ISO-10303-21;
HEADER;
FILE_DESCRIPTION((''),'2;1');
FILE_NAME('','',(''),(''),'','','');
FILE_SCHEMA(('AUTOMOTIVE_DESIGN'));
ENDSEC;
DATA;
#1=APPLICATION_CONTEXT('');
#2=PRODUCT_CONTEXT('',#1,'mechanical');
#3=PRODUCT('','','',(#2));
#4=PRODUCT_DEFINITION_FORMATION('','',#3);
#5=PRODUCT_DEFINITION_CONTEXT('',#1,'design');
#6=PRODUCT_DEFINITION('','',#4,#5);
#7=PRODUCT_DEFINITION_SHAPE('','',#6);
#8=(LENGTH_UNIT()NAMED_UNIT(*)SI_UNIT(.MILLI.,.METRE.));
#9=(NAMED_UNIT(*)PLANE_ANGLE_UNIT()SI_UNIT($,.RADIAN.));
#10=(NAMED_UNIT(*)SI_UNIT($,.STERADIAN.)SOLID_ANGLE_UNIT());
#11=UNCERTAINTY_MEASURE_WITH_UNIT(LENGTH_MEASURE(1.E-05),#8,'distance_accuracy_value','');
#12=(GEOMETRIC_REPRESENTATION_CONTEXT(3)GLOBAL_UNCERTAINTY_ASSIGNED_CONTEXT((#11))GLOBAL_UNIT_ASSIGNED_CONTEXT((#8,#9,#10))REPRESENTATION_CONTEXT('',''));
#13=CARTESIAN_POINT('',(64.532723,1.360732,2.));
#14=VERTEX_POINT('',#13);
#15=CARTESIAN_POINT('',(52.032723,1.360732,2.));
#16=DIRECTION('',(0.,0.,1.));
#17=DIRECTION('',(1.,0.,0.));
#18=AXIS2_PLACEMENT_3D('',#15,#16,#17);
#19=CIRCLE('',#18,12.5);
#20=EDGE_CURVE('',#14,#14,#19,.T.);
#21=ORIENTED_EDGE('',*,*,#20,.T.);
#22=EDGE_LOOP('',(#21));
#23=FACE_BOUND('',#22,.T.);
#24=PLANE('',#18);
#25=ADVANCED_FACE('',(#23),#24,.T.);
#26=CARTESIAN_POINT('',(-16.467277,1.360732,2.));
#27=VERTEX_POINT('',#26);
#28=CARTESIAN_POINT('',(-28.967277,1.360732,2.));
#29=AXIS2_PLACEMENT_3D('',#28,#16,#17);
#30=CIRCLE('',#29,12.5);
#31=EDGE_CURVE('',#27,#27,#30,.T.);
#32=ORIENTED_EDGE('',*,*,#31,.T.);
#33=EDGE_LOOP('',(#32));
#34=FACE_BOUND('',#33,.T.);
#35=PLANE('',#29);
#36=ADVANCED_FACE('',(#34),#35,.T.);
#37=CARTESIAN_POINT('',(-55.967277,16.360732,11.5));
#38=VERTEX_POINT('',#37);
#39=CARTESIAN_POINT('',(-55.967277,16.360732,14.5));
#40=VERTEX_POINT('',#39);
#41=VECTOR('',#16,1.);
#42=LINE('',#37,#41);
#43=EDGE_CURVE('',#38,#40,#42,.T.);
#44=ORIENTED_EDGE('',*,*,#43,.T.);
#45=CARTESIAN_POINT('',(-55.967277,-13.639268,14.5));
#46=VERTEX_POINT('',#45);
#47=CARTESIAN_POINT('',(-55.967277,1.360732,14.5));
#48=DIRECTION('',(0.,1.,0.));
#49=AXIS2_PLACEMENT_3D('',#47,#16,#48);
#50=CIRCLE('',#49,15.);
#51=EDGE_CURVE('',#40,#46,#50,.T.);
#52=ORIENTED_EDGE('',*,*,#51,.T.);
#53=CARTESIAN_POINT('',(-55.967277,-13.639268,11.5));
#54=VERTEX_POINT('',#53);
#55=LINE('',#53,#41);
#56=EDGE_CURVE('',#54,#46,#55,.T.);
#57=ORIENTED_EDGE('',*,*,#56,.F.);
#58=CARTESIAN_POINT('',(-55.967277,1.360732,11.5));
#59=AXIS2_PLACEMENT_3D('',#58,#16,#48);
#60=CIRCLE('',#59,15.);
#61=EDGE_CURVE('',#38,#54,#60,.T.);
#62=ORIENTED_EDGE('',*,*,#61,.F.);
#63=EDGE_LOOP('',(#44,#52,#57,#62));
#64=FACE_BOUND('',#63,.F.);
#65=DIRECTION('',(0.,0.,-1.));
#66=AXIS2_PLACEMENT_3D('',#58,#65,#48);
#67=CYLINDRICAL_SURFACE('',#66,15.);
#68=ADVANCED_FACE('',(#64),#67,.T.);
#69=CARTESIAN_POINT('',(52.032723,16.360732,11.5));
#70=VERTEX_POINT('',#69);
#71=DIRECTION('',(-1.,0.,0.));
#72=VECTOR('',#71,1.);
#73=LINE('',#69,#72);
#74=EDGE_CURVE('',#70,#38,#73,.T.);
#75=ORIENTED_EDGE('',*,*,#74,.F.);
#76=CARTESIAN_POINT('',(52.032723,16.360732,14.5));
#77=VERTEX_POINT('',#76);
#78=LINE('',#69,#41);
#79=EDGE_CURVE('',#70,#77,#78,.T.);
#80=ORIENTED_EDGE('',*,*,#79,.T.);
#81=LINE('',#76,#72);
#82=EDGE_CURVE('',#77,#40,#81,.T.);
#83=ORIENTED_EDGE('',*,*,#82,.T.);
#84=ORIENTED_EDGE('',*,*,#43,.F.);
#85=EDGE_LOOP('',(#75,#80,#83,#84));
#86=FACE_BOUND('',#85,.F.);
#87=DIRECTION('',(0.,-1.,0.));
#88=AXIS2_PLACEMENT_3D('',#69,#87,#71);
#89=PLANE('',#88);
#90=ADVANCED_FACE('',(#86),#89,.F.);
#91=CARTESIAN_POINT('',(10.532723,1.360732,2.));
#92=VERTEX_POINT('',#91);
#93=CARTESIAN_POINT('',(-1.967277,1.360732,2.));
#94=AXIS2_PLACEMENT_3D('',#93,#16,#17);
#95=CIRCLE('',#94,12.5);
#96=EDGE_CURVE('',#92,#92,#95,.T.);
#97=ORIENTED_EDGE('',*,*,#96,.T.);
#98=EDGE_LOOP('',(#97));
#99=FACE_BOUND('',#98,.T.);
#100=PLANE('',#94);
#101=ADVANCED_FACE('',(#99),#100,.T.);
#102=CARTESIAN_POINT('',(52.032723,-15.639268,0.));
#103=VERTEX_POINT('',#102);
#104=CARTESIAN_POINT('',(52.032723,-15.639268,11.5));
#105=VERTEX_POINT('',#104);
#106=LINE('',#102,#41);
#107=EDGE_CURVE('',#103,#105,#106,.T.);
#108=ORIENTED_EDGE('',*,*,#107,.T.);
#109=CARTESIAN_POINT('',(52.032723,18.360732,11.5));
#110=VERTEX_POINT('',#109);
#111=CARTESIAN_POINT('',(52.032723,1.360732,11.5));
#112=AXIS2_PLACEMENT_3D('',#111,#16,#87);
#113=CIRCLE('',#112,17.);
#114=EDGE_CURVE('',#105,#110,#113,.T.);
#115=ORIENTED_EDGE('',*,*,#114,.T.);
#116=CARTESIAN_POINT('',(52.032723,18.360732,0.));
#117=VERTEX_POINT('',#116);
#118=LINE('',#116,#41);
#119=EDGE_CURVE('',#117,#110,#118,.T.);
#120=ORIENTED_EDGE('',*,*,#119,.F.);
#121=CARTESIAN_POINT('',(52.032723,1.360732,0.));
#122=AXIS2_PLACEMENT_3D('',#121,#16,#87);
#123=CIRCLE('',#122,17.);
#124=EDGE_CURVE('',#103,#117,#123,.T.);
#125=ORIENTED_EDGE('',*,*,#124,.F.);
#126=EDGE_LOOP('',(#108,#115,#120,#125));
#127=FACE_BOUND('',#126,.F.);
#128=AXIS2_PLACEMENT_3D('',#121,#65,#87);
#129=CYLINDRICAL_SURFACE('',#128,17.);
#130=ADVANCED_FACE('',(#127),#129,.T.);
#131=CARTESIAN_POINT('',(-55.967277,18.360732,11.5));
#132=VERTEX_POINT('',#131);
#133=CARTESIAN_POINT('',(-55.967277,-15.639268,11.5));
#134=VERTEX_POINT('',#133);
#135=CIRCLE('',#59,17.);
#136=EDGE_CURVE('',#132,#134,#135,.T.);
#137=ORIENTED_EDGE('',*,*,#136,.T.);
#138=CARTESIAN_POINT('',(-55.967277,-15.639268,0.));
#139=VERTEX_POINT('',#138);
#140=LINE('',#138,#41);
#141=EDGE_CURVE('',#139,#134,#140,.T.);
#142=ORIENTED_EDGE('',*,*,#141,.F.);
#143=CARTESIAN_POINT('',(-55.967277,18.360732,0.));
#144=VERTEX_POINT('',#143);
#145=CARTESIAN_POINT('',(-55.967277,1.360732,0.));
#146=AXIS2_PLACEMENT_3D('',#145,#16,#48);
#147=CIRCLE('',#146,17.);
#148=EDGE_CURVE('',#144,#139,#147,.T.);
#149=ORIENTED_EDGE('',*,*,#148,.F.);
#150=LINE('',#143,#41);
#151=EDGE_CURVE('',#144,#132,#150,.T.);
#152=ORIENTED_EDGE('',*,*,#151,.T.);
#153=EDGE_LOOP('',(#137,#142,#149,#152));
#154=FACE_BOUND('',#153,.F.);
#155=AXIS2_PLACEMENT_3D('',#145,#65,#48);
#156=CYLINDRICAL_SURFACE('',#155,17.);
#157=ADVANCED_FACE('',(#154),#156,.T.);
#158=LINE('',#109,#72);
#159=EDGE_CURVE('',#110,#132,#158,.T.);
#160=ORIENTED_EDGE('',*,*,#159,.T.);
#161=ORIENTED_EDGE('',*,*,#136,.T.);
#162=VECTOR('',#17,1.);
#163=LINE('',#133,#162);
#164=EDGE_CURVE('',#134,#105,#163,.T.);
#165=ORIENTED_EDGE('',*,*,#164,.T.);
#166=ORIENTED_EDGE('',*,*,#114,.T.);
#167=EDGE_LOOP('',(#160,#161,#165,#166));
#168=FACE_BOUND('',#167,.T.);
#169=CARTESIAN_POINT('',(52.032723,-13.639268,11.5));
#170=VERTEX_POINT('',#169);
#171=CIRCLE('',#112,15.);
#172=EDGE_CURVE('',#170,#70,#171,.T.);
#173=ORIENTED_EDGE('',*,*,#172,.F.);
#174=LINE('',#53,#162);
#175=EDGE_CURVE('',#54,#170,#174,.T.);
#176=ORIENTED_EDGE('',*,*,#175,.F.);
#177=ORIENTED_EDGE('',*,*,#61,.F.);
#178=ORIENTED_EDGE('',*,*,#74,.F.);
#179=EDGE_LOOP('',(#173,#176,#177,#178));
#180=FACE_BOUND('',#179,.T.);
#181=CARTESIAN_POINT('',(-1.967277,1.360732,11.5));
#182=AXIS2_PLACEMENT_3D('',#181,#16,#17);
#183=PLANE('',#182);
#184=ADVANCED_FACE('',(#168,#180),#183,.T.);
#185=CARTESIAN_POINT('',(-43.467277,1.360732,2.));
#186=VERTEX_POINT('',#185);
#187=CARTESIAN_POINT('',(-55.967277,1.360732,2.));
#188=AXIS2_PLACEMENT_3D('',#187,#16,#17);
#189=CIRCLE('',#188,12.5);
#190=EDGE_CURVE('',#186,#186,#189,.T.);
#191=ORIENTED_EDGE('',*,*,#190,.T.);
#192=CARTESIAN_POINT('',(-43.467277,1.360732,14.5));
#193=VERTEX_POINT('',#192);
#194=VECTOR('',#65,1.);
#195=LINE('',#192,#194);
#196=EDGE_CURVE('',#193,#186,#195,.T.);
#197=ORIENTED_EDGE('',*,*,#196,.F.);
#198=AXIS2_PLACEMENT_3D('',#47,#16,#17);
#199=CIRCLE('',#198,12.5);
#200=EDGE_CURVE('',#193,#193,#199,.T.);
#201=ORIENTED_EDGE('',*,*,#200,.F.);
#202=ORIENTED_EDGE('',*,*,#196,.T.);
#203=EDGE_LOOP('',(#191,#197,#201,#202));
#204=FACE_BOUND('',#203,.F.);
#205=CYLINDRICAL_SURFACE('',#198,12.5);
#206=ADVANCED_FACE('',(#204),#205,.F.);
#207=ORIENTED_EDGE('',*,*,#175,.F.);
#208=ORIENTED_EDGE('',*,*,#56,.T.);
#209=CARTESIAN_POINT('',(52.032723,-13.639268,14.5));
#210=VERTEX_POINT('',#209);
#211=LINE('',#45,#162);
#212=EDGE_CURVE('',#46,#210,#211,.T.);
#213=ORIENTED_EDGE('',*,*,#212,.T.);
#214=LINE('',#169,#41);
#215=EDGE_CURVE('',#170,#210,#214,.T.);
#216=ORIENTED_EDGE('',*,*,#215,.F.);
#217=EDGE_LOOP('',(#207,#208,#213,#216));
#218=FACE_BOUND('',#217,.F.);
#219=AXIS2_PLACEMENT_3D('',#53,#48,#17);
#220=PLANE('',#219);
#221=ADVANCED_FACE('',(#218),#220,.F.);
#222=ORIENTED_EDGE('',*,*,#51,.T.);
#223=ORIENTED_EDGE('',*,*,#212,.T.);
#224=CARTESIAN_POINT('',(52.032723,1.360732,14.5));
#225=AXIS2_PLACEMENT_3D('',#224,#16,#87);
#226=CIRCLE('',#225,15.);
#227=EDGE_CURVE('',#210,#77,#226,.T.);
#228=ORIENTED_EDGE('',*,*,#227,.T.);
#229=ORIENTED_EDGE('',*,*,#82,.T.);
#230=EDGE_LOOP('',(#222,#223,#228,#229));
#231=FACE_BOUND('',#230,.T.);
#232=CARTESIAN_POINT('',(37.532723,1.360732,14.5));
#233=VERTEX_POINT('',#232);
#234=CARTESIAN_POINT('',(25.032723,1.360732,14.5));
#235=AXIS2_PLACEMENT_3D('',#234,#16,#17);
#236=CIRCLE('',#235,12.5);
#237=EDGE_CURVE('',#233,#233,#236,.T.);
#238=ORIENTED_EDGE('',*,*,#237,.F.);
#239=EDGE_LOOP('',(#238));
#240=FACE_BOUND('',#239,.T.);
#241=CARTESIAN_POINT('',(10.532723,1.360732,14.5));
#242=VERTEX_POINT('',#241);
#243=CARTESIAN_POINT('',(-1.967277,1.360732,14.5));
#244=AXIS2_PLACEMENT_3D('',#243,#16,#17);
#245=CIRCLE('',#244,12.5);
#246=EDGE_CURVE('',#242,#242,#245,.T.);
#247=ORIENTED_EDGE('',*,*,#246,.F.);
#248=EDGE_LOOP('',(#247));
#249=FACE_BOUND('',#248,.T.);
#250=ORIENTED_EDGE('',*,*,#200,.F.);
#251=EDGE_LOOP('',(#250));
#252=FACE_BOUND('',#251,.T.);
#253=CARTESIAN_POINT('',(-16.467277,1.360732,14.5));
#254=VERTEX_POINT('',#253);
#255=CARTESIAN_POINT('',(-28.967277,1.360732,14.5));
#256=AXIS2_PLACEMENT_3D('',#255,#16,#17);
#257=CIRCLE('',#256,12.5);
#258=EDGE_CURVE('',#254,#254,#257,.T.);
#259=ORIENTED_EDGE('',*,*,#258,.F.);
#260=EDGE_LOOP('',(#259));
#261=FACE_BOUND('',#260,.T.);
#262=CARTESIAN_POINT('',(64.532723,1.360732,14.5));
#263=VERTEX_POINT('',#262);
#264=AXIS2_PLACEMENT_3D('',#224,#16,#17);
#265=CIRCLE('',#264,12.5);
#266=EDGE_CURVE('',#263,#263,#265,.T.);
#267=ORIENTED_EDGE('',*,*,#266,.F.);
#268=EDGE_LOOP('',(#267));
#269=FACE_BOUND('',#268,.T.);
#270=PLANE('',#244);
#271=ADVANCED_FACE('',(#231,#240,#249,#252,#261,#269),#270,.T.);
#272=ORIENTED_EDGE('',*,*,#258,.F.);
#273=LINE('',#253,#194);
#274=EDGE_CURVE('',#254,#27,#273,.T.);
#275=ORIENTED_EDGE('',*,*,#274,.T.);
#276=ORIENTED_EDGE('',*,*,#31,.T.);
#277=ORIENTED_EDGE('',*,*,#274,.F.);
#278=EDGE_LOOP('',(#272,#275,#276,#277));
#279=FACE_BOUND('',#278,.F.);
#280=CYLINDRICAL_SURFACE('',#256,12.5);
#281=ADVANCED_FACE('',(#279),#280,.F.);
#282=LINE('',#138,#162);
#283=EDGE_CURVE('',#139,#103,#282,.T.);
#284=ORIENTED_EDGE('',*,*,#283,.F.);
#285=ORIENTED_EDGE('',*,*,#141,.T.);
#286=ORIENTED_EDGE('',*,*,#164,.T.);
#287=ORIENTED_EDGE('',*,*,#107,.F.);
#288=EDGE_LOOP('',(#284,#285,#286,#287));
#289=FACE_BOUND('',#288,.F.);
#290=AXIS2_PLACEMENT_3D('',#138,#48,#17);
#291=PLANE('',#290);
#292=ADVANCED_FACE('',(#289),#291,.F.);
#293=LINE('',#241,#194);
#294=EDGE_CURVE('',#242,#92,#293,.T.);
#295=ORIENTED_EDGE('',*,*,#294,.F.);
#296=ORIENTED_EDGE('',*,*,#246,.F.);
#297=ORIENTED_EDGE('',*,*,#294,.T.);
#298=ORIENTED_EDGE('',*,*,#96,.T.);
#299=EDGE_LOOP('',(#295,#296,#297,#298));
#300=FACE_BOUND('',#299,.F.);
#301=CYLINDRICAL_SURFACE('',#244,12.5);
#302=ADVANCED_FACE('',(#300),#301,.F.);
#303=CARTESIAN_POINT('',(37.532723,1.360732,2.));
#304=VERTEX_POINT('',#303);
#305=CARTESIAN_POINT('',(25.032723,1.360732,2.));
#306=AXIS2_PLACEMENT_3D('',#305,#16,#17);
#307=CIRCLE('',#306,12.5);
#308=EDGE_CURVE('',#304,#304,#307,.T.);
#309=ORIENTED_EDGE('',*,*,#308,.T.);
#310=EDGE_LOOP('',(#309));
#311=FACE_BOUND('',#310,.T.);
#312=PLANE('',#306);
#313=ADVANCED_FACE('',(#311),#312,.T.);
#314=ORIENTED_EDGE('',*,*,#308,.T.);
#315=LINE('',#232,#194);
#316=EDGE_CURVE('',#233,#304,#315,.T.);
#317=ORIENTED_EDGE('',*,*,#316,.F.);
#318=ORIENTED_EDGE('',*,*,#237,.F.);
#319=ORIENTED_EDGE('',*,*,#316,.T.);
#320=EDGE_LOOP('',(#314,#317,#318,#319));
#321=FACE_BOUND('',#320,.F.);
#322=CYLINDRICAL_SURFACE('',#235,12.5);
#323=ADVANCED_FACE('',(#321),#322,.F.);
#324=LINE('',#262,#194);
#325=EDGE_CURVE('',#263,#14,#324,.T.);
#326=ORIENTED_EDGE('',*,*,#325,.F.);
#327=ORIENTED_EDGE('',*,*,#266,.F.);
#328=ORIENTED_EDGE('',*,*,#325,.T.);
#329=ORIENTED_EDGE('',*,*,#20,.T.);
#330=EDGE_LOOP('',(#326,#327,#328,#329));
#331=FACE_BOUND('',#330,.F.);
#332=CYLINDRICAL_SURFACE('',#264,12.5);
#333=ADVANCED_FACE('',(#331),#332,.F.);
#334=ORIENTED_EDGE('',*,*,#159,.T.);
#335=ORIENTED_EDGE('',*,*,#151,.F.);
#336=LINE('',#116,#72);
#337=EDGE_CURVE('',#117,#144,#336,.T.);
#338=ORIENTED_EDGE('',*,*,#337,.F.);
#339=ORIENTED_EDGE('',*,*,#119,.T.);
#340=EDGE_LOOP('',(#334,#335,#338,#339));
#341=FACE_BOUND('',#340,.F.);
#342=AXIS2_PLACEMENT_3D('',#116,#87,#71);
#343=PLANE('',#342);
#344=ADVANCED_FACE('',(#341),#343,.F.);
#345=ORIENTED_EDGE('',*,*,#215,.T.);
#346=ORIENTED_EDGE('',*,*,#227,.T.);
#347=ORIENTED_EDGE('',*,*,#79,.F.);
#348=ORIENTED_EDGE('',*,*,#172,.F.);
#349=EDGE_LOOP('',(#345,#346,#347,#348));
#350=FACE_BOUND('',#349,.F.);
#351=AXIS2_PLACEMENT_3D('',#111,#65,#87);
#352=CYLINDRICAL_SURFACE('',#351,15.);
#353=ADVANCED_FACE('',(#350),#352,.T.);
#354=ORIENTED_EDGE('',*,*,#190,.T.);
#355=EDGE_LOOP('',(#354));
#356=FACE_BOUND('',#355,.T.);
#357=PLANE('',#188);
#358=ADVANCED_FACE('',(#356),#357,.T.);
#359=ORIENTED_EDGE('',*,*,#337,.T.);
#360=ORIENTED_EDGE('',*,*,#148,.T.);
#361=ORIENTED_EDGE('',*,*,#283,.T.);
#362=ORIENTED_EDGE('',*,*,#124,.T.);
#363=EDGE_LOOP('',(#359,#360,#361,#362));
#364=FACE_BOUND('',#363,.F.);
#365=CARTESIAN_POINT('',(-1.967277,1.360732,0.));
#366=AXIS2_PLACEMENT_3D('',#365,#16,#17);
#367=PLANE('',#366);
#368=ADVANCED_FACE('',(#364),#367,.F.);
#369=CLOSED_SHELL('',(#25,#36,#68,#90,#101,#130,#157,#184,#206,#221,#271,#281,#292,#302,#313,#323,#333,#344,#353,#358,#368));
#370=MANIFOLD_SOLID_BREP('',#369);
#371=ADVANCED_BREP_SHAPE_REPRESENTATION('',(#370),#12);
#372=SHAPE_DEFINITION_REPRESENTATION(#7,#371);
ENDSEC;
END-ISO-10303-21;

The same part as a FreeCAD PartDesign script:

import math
import FreeCAD as App
import Part
import Sketcher
from FreeCAD import Vector
Q = App.Units.Quantity

doc = App.newDocument("Part")
params = doc.addObject("Spreadsheet::Sheet", "Params")
for row, (alias, value) in enumerate([
    ("sketch1_radius", "17 mm"),
    ("sketch1_width", "108 mm"),
    ("pad1_length", "11.5 mm"),
    ("sketch2_radius", "15 mm"),
    ("sketch2_width", "108 mm"),
    ("pad2_length", "3 mm"),
    ("sketch3_diameter", "25 mm"),
    ("pocket1_length", "12.5 mm"),
], start=1):
    params.set(f"A{row}", alias)
    params.set(f"B{row}", "=" + value)
    params.setAlias(f"B{row}", alias)

body = doc.addObject("PartDesign::Body", "Body")

sketch1 = doc.addObject("Sketcher::SketchObject", "Sketch")
body.addObject(sketch1)
sketch1.AttachmentSupport = (doc.XY_Plane, [""])
sketch1.MapMode = "FlatFace"
sketch1.addGeometry([
    Part.LineSegment(Vector(52.032723, 18.360732, 0), Vector(-55.967277, 18.360732, 0)),
    Part.ArcOfCircle(Part.Circle(Vector(-55.967277, 1.360732, 0), Vector(0, 0, 1), 17), math.radians(90), math.radians(270)),
    Part.LineSegment(Vector(-55.967277, -15.639268, 0), Vector(52.032723, -15.639268, 0)),
    Part.ArcOfCircle(Part.Circle(Vector(52.032723, 1.360732, 0), Vector(0, 0, 1), 17), math.radians(-90), math.radians(90)),
], False)
sketch1.addConstraint([
    Sketcher.Constraint("Tangent", 0, 2, 1, 1),
    Sketcher.Constraint("Tangent", 1, 2, 2, 1),
    Sketcher.Constraint("Tangent", 2, 2, 3, 1),
    Sketcher.Constraint("Tangent", 3, 2, 0, 1),
    Sketcher.Constraint("Horizontal", 0),
    Sketcher.Constraint("Horizontal", 2),
    Sketcher.Constraint("Radius", 1, Q("17 mm")),
    Sketcher.Constraint("DistanceX", 0, 2, 0, 1, Q("108 mm")),
    Sketcher.Constraint("DistanceY", -1, 1, 0, 2, Q("18.360732 mm")),
    Sketcher.Constraint("DistanceX", 1, 3, -1, 1, Q("55.967277 mm")),
])
sketch1.setExpression("Constraints[6]", "Params.sketch1_radius")
sketch1.setExpression("Constraints[7]", "Params.sketch1_width")
pad1 = doc.addObject("PartDesign::Pad", "Pad")
body.addObject(pad1)
pad1.Profile = sketch1
pad1.setExpression("Length", "Params.pad1_length")

sketch2 = doc.addObject("Sketcher::SketchObject", "Sketch001")
body.addObject(sketch2)
sketch2.AttachmentSupport = (doc.XY_Plane, [""])
sketch2.MapMode = "FlatFace"
sketch2.AttachmentOffset = App.Placement(Vector(0, 0, 11.5), App.Rotation())
sketch2.addGeometry([
    Part.ArcOfCircle(Part.Circle(Vector(52.032723, 1.360732, 0), Vector(0, 0, 1), 15), math.radians(-90), math.radians(90)),
    Part.LineSegment(Vector(52.032723, 16.360732, 0), Vector(-55.967277, 16.360732, 0)),
    Part.ArcOfCircle(Part.Circle(Vector(-55.967277, 1.360732, 0), Vector(0, 0, 1), 15), math.radians(90), math.radians(270)),
    Part.LineSegment(Vector(-55.967277, -13.639268, 0), Vector(52.032723, -13.639268, 0)),
], False)
sketch2.addConstraint([
    Sketcher.Constraint("Tangent", 0, 2, 1, 1),
    Sketcher.Constraint("Tangent", 1, 2, 2, 1),
    Sketcher.Constraint("Tangent", 2, 2, 3, 1),
    Sketcher.Constraint("Tangent", 3, 2, 0, 1),
    Sketcher.Constraint("Horizontal", 1),
    Sketcher.Constraint("Horizontal", 3),
    Sketcher.Constraint("Radius", 0, Q("15 mm")),
    Sketcher.Constraint("DistanceX", 1, 2, 1, 1, Q("108 mm")),
    Sketcher.Constraint("DistanceY", -1, 1, 0, 2, Q("16.360732 mm")),
    Sketcher.Constraint("DistanceX", -1, 1, 0, 3, Q("52.032723 mm")),
])
sketch2.setExpression("Constraints[6]", "Params.sketch2_radius")
sketch2.setExpression("Constraints[7]", "Params.sketch2_width")
pad2 = doc.addObject("PartDesign::Pad", "Pad001")
body.addObject(pad2)
pad2.Profile = sketch2
pad2.setExpression("Length", "Params.pad2_length")

sketch3 = doc.addObject("Sketcher::SketchObject", "Sketch002")
body.addObject(sketch3)
sketch3.AttachmentSupport = (doc.XY_Plane, [""])
sketch3.MapMode = "FlatFace"
sketch3.AttachmentOffset = App.Placement(Vector(0, 0, 14.5), App.Rotation())
sketch3.addGeometry([
    Part.Circle(Vector(-55.967277, 1.360732, 0), Vector(0, 0, 1), 12.5),
    Part.Circle(Vector(-28.967277, 1.360732, 0), Vector(0, 0, 1), 12.5),
    Part.Circle(Vector(-1.967277, 1.360732, 0), Vector(0, 0, 1), 12.5),
    Part.Circle(Vector(25.032723, 1.360732, 0), Vector(0, 0, 1), 12.5),
    Part.Circle(Vector(52.032723, 1.360732, 0), Vector(0, 0, 1), 12.5),
], False)
sketch3.addConstraint([
    Sketcher.Constraint("Equal", 0, 1),
    Sketcher.Constraint("Equal", 1, 2),
    Sketcher.Constraint("Equal", 2, 3),
    Sketcher.Constraint("Equal", 3, 4),
    Sketcher.Constraint("Horizontal", 0, 3, 1, 3),
    Sketcher.Constraint("Horizontal", 1, 3, 2, 3),
    Sketcher.Constraint("Horizontal", 2, 3, 3, 3),
    Sketcher.Constraint("Horizontal", 3, 3, 4, 3),
    Sketcher.Constraint("Diameter", 0, Q("25 mm")),
    Sketcher.Constraint("DistanceX", 0, 3, 1, 3, Q("27 mm")),
    Sketcher.Constraint("DistanceX", 1, 3, 2, 3, Q("27 mm")),
    Sketcher.Constraint("DistanceX", 2, 3, 3, 3, Q("27 mm")),
    Sketcher.Constraint("DistanceX", 3, 3, 4, 3, Q("27 mm")),
    Sketcher.Constraint("DistanceX", 0, 3, -1, 1, Q("55.967277 mm")),
    Sketcher.Constraint("DistanceY", -1, 1, 0, 3, Q("1.360732 mm")),
])
sketch3.setExpression("Constraints[8]", "Params.sketch3_diameter")
pocket1 = doc.addObject("PartDesign::Pocket", "Pocket")
body.addObject(pocket1)
pocket1.Profile = sketch3
pocket1.setExpression("Length", "Params.pocket1_length")

doc.recompute()
